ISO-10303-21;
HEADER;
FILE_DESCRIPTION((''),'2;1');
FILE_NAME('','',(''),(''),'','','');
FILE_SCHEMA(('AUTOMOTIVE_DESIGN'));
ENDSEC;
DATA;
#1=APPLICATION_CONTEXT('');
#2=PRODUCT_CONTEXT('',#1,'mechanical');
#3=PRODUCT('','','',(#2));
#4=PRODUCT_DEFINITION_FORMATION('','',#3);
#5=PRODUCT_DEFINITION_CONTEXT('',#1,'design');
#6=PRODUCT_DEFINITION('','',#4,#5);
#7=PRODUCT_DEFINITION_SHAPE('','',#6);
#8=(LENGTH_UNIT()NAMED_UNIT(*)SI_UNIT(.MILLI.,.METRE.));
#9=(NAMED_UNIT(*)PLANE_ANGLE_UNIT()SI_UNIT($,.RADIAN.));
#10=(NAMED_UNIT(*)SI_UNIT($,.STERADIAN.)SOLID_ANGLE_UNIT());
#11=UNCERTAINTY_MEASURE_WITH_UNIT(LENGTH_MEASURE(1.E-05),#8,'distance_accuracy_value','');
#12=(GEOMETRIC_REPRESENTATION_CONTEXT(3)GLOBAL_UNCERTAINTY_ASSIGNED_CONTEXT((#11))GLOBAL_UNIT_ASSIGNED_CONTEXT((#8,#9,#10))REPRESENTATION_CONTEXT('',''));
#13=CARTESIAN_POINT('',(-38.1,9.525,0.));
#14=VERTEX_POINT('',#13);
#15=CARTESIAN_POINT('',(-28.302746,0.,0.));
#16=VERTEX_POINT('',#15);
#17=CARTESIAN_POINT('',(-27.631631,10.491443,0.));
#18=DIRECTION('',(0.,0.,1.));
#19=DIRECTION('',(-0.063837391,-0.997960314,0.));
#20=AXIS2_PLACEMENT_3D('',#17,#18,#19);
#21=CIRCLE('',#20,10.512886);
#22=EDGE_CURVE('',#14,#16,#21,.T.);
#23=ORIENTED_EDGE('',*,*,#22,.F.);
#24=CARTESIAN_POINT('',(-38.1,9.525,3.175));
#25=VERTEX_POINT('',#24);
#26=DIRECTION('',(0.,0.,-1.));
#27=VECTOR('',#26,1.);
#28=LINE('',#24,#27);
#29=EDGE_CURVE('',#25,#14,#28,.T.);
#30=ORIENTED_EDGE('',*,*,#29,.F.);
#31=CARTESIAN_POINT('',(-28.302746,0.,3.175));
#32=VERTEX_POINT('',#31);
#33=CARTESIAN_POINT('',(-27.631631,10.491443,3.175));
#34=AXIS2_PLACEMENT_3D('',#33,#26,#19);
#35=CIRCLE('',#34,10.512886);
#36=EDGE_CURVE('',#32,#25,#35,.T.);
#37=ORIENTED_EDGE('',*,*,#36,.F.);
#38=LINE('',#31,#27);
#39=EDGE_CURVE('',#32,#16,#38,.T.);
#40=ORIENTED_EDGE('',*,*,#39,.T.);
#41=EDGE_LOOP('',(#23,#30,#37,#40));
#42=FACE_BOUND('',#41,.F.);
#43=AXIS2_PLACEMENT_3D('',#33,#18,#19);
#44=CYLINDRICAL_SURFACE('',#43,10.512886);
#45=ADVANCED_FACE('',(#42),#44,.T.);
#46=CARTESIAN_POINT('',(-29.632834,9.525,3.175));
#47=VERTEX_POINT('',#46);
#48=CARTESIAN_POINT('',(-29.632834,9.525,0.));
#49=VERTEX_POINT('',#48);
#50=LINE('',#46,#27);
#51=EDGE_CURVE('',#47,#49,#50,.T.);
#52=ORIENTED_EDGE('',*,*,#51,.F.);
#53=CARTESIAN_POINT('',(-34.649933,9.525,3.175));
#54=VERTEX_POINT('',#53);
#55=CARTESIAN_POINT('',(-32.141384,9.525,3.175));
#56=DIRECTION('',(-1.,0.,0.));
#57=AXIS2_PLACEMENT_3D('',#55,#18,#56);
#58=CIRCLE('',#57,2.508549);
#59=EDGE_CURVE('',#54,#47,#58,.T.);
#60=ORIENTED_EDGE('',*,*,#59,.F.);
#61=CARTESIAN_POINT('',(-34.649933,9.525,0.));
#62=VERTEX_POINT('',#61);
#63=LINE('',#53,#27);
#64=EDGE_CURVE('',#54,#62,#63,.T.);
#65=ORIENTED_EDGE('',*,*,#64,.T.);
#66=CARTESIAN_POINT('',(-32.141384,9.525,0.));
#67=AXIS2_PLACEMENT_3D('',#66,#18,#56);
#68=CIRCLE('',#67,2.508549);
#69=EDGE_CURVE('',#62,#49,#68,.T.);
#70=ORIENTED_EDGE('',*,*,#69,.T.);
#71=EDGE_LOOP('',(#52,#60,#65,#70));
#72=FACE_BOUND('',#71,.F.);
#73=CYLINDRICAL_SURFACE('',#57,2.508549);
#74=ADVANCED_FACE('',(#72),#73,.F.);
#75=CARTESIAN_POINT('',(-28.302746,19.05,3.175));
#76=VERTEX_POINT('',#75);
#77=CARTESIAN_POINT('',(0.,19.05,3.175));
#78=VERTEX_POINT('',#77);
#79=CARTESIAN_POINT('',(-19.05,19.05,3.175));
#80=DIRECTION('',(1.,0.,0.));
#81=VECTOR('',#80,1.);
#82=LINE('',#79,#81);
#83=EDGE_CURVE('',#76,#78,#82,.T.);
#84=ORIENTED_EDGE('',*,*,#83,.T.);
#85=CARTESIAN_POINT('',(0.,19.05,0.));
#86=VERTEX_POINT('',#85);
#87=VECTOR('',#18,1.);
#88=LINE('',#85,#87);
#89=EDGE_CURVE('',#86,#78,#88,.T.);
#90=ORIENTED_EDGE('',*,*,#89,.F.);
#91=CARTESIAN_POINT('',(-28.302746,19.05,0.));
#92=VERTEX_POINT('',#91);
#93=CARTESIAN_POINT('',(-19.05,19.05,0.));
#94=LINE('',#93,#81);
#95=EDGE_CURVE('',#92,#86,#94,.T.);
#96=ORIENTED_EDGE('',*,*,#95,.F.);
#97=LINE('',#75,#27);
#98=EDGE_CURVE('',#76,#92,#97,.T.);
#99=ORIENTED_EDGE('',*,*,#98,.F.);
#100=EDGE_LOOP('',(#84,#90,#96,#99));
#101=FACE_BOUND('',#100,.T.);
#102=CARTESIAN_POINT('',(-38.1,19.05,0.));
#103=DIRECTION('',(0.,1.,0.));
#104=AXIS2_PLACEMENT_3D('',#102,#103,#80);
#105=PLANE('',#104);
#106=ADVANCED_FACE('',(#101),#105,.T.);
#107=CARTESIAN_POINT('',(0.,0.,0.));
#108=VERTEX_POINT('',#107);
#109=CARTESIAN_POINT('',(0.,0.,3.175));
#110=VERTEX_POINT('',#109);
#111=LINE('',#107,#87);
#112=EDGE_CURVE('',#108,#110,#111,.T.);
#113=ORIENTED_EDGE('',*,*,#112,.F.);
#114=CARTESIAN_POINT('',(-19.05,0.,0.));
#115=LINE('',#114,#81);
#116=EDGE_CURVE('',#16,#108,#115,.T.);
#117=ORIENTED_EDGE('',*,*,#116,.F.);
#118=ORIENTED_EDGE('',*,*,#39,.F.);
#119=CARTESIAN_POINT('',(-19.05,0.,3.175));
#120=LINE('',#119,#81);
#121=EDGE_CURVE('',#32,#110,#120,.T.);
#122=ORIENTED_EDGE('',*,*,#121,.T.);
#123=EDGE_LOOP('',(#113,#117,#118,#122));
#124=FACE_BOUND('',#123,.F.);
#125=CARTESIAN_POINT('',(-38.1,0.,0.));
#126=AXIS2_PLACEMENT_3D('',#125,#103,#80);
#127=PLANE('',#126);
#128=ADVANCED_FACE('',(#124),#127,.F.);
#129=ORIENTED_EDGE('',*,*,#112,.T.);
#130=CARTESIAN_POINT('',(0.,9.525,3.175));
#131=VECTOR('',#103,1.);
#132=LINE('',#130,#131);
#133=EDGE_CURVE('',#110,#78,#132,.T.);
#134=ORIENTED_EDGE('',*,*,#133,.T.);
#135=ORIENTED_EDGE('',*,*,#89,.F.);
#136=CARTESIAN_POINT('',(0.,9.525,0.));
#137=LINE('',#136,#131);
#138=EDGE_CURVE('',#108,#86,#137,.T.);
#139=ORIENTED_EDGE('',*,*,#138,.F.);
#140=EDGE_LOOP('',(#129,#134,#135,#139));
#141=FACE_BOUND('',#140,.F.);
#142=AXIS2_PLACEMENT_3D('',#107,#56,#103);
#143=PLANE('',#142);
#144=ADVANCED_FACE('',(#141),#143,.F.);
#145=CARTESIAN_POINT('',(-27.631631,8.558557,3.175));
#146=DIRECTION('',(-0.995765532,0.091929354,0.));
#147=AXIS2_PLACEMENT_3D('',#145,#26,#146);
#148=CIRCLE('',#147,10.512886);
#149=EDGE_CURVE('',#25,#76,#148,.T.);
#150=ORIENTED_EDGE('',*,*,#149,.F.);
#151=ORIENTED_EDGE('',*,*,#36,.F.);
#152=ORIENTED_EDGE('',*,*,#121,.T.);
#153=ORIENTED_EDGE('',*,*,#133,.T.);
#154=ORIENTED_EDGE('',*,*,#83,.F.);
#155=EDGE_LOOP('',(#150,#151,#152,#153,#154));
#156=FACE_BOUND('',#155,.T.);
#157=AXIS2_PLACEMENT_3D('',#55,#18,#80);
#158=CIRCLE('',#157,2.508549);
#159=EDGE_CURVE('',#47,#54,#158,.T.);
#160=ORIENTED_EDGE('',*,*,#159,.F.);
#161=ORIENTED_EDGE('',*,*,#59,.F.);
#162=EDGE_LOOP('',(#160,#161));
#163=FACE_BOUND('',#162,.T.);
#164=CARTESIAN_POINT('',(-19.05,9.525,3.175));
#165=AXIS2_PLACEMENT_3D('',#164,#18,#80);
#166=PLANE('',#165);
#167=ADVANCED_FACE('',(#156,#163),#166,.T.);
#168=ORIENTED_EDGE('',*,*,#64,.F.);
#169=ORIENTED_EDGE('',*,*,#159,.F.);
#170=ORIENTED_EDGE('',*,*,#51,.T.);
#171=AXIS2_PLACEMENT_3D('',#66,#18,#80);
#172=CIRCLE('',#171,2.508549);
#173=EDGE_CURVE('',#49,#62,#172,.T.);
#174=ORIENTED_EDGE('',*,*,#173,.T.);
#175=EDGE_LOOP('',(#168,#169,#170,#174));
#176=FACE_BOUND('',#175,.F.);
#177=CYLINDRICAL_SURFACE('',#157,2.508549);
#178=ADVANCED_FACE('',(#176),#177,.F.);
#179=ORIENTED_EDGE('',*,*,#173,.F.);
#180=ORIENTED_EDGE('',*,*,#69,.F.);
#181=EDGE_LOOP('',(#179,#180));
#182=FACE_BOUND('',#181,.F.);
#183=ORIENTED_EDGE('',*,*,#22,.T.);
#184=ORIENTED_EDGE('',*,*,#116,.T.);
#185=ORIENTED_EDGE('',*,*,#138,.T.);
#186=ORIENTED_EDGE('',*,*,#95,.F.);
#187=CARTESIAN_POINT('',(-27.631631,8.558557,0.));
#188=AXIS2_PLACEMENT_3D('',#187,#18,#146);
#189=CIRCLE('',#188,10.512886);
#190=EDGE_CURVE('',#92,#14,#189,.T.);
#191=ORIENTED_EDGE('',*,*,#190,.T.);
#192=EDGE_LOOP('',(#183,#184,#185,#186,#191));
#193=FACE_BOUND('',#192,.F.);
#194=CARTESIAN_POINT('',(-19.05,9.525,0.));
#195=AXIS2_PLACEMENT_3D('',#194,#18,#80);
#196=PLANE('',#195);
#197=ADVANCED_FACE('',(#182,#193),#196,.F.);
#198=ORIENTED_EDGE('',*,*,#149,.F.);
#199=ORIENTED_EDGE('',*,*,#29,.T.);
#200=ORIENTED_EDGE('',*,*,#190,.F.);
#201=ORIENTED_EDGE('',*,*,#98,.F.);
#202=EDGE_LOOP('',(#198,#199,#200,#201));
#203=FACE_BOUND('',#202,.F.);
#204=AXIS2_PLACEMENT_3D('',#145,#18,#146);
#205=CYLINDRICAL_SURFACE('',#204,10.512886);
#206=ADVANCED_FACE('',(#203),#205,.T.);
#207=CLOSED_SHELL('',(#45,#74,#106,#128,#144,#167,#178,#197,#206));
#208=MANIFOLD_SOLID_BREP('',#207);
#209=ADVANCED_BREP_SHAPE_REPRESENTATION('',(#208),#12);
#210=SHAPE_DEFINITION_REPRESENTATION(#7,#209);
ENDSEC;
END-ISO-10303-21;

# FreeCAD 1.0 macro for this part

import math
import FreeCAD as App
import Part
import Sketcher
from FreeCAD import Vector
Q = App.Units.Quantity

doc = App.newDocument("Part")
body = doc.addObject("PartDesign::Body", "Body")

sketch1 = body.newObject("Sketcher::SketchObject", "Sketch")
sketch1.AttachmentSupport = (doc.getObject("XY_Plane"), [""])
sketch1.MapMode = "FlatFace"
sketch1.addGeometry(Part.LineSegment(Vector(-38, 19, 0), Vector(-38, 0, 0)), False)
sketch1.addGeometry(Part.LineSegment(Vector(-38, 0, 0), Vector(0, 0, 0)), False)
sketch1.addGeometry(Part.LineSegment(Vector(0, 0, 0), Vector(0, 19, 0)), False)
sketch1.addGeometry(Part.LineSegment(Vector(0, 19, 0), Vector(-38, 19, 0)), False)
sketch1.addConstraint(Sketcher.Constraint("Coincident", 0, 2, 1, 1))
sketch1.addConstraint(Sketcher.Constraint("Coincident", 1, 2, 2, 1))
sketch1.addConstraint(Sketcher.Constraint("Coincident", 2, 2, 3, 1))
sketch1.addConstraint(Sketcher.Constraint("Coincident", 3, 2, 0, 1))
sketch1.addConstraint(Sketcher.Constraint("Vertical", 0))
sketch1.addConstraint(Sketcher.Constraint("Horizontal", 1))
sketch1.addConstraint(Sketcher.Constraint("Vertical", 2))
sketch1.addConstraint(Sketcher.Constraint("Horizontal", 3))
sketch1.addConstraint(Sketcher.Constraint("Coincident", 1, 2, -1, 1))
sketch1.addConstraint(Sketcher.Constraint("DistanceX", 1, 1, 1, 2, Q("1.5 in")))
sketch1.addConstraint(Sketcher.Constraint("DistanceY", 0, 2, 0, 1, Q("0.75 in")))
pad1 = body.newObject("PartDesign::Pad", "Pad")
pad1.Profile = sketch1
pad1.Length = Q("0.125 in")

sketch2 = body.newObject("Sketcher::SketchObject", "Sketch001")
sketch2.AttachmentSupport = (doc.getObject("XY_Plane"), [""])
sketch2.MapMode = "FlatFace"
sketch2.AttachmentOffset = App.Placement(Vector(0, 0, 0.125 * 25.4), App.Rotation())
sketch2.addGeometry(Part.LineSegment(Vector(-38.1, 19.1, 0), Vector(-38.1, 9.5, 0)), False)
sketch2.addGeometry(Part.ArcOfCircle(Part.Circle(Vector(-27.6, 8.6, 0), Vector(0, 0, 1), 10.5), math.radians(94), math.radians(175)), False)
sketch2.addGeometry(Part.LineSegment(Vector(-28.3, 19.1, 0), Vector(-38.1, 19.1, 0)), False)
sketch2.addGeometry(Part.ArcOfCircle(Part.Circle(Vector(-27.6, 10.5, 0), Vector(0, 0, 1), 10.5), math.radians(-175), math.radians(-94)), False)
sketch2.addGeometry(Part.LineSegment(Vector(-38.1, 9.5, 0), Vector(-38.1, 0, 0)), False)
sketch2.addGeometry(Part.LineSegment(Vector(-38.1, 0, 0), Vector(-28.3, 0, 0)), False)
sketch2.addGeometry(Part.ArcOfCircle(Part.Circle(Vector(-32.1, 9.5, 0), Vector(0, 0, 1), 2.5), math.radians(0), math.radians(180)), False)
sketch2.addGeometry(Part.ArcOfCircle(Part.Circle(Vector(-32.1, 9.5, 0), Vector(0, 0, 1), 2.5), math.radians(180), math.radians(360)), False)
sketch2.addConstraint(Sketcher.Constraint("Coincident", 0, 2, 1, 2))
sketch2.addConstraint(Sketcher.Constraint("Coincident", 1, 1, 2, 1))
sketch2.addConstraint(Sketcher.Constraint("Coincident", 2, 2, 0, 1))
sketch2.addConstraint(Sketcher.Constraint("Coincident", 3, 1, 4, 1))
sketch2.addConstraint(Sketcher.Constraint("Coincident", 4, 2, 5, 1))
sketch2.addConstraint(Sketcher.Constraint("Coincident", 5, 2, 3, 2))
sketch2.addConstraint(Sketcher.Constraint("Tangent", 6, 1, 7, 2))
sketch2.addConstraint(Sketcher.Constraint("Coincident", 7, 1, 6, 2))
sketch2.addConstraint(Sketcher.Constraint("Vertical", 0))
sketch2.addConstraint(Sketcher.Constraint("Horizontal", 2))
sketch2.addConstraint(Sketcher.Constraint("Vertical", 4))
sketch2.addConstraint(Sketcher.Constraint("Horizontal", 5))
sketch2.addConstraint(Sketcher.Constraint("Coincident", 3, 1, 0, 2))
sketch2.addConstraint(Sketcher.Constraint("Equal", 1, 3))
sketch2.addConstraint(Sketcher.Constraint("PointOnObject", 4, 2, -1))
sketch2.addConstraint(Sketcher.Constraint("Horizontal", 7, 3, 0, 2))
sketch2.addConstraint(Sketcher.Constraint("Horizontal", 3, 1, 6, 1))
sketch2.addConstraint(Sketcher.Constraint("Horizontal", 6, 1, 7, 1))
sketch2.addConstraint(Sketcher.Constraint("Vertical", 1, 3, 3, 3))
sketch2.addConstraint(Sketcher.Constraint("Vertical", 1, 1, 5, 2))
sketch2.addConstraint(Sketcher.Constraint("DistanceX", 0, 2, -1, 1, Q("1.5 in")))
sketch2.addConstraint(Sketcher.Constraint("DistanceY", 0, 2, 0, 1, Q("0.375 in")))
sketch2.addConstraint(Sketcher.Constraint("Radius", 6, 2.508549))
sketch2.addConstraint(Sketcher.Constraint("Radius", 1, 10.512886))
sketch2.addConstraint(Sketcher.Constraint("DistanceX", 2, 2, 2, 1, 9.797254))
sketch2.addConstraint(Sketcher.Constraint("DistanceX", 6, 3, -1, 1, 32.141384))
pocket1 = body.newObject("PartDesign::Pocket", "Pocket")
pocket1.Profile = sketch2
pocket1.Type = "ThroughAll"

doc.recompute()
